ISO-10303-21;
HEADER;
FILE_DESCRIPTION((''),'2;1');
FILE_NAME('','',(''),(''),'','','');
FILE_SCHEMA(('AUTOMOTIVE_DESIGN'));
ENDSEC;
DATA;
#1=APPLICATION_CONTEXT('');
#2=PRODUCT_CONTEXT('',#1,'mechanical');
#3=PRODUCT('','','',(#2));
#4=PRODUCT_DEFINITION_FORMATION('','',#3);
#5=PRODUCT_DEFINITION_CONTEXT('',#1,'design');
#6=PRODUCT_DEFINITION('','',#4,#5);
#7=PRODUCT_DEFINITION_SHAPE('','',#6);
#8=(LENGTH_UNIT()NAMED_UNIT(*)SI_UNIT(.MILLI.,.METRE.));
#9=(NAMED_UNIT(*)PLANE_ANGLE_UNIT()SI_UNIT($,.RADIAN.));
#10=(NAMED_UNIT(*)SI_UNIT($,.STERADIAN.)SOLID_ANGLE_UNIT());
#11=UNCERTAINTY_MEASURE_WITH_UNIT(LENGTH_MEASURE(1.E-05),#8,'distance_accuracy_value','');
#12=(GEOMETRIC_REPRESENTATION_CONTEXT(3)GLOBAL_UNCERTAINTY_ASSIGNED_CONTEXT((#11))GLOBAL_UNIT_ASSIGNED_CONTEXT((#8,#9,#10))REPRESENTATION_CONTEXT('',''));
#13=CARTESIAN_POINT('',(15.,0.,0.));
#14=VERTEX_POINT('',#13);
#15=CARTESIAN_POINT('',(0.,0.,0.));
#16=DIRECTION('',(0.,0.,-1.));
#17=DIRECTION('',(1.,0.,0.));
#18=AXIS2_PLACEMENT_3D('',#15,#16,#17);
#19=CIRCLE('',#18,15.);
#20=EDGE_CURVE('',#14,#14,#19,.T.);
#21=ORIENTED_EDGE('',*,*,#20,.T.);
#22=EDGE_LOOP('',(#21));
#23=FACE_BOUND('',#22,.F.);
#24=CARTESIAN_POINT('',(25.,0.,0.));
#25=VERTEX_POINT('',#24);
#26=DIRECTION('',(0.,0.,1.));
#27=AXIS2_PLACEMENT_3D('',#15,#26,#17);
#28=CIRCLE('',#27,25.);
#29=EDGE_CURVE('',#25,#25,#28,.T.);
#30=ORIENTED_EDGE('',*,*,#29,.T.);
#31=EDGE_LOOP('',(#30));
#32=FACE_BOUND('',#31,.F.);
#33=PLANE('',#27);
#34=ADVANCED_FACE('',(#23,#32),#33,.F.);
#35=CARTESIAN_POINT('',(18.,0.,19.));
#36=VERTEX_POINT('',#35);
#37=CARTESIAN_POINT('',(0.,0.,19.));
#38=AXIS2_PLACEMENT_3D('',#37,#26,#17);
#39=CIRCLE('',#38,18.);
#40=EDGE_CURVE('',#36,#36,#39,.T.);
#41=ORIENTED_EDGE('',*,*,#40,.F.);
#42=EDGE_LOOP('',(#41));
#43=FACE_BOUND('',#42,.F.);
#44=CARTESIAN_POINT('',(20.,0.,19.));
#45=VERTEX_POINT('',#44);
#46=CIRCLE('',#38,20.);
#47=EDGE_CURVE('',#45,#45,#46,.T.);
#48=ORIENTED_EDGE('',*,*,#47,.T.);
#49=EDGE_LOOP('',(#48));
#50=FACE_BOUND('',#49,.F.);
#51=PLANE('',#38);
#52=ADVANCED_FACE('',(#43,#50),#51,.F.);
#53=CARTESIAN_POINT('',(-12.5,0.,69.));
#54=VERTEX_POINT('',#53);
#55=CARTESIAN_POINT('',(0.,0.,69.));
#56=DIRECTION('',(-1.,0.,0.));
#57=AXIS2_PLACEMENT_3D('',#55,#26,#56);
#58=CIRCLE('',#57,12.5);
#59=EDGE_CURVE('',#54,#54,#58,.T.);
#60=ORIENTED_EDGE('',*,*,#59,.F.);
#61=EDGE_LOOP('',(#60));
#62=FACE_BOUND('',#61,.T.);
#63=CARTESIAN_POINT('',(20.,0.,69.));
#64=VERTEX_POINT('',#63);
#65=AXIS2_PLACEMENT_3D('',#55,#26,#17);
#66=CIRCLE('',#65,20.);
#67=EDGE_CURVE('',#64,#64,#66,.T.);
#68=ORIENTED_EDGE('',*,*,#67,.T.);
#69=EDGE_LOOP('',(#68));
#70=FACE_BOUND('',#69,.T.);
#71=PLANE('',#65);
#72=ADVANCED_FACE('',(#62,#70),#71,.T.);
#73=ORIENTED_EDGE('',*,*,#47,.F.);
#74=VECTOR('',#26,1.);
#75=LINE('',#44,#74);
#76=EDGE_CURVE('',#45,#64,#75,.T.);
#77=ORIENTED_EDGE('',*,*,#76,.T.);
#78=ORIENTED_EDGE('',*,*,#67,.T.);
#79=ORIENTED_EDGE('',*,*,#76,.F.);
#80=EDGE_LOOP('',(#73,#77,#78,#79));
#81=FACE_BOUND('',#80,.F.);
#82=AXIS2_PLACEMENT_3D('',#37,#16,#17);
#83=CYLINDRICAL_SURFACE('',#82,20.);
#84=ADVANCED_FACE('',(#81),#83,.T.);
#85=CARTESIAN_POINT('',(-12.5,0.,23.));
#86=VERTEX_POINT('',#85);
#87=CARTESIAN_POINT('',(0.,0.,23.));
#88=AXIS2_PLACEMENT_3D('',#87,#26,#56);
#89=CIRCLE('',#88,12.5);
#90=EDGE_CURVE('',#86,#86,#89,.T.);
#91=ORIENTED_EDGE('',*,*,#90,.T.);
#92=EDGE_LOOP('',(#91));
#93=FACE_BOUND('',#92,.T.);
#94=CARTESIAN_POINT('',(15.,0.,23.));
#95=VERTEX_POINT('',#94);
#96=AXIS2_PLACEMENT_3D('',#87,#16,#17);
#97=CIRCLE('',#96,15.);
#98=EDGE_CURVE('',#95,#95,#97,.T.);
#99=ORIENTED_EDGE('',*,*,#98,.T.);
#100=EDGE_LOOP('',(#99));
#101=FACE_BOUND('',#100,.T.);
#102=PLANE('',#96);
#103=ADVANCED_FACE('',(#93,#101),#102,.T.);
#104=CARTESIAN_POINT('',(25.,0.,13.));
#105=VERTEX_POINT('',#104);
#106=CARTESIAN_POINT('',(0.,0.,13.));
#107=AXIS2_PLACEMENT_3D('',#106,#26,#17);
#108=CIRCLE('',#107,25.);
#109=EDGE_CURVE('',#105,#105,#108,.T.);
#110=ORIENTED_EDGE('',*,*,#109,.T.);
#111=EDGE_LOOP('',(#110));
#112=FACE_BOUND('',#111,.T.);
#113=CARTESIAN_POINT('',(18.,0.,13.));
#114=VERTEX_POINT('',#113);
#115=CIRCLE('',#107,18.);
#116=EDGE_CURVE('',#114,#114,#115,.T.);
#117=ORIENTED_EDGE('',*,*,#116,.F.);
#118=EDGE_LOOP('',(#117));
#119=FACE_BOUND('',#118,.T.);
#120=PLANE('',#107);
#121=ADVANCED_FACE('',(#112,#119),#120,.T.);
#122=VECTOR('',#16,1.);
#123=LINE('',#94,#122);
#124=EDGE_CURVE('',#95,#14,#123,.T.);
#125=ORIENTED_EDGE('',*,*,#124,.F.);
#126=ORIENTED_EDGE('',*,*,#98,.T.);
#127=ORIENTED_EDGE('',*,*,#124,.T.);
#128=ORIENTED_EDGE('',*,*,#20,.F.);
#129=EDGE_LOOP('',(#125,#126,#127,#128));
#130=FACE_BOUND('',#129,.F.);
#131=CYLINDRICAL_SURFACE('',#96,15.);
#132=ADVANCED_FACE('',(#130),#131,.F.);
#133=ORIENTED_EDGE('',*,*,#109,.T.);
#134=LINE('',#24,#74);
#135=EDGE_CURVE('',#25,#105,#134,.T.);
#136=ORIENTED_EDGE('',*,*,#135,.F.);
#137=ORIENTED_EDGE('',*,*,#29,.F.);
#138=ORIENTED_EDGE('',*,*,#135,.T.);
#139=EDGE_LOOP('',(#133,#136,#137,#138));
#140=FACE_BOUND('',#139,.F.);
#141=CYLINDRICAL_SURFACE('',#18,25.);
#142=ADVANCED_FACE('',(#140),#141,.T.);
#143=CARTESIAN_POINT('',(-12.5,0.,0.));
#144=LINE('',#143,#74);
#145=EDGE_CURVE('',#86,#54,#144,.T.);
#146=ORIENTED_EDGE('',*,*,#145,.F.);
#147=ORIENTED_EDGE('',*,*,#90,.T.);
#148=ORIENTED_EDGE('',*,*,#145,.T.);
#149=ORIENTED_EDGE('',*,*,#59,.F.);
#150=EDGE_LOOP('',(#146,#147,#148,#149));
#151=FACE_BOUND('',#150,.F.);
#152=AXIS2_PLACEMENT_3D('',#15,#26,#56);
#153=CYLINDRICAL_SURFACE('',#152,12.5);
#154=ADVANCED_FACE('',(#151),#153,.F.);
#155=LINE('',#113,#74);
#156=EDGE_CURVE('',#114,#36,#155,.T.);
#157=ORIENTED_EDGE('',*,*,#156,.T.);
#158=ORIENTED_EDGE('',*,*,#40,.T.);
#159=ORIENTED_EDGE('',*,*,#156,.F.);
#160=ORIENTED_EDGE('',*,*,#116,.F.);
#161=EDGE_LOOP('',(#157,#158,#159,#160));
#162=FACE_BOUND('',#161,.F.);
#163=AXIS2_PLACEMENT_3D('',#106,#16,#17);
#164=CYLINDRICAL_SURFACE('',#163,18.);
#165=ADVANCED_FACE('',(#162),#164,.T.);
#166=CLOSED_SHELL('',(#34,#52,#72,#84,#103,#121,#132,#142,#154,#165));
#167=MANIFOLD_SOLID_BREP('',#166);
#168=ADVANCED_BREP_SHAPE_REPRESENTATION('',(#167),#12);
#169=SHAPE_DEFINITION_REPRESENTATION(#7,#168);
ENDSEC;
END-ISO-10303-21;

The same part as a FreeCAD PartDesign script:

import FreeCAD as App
import Part
import Sketcher
from FreeCAD import Vector

doc = App.newDocument("Part")
body = doc.addObject("PartDesign::Body", "Body")

sketch1 = body.newObject("Sketcher::SketchObject", "Sketch")
sketch1.AttachmentSupport = (doc.getObject("XY_Plane"), [""])
sketch1.MapMode = "FlatFace"
sketch1.addGeometry(Part.Circle(Vector(0, 0, 0), Vector(0, 0, 1), 25), False)
sketch1.addConstraint([
    Sketcher.Constraint("Coincident", 0, 3, -1, 1),
    Sketcher.Constraint("Diameter", 0, 50.0),
])
pad1 = body.newObject("PartDesign::Pad", "Pad")
pad1.Profile = sketch1
pad1.Length = 13

sketch2 = body.newObject("Sketcher::SketchObject", "Sketch001")
sketch2.AttachmentSupport = (doc.getObject("XY_Plane"), [""])
sketch2.MapMode = "FlatFace"
sketch2.AttachmentOffset = App.Placement(Vector(0, 0, 13), App.Rotation())
sketch2.addGeometry(Part.Circle(Vector(0, 0, 0), Vector(0, 0, 1), 18), False)
sketch2.addConstraint([
    Sketcher.Constraint("Coincident", 0, 3, -1, 1),
    Sketcher.Constraint("Diameter", 0, 36.0),
])
pad2 = body.newObject("PartDesign::Pad", "Pad001")
pad2.Profile = sketch2
pad2.Length = 6

sketch3 = body.newObject("Sketcher::SketchObject", "Sketch002")
sketch3.AttachmentSupport = (doc.getObject("XY_Plane"), [""])
sketch3.MapMode = "FlatFace"
sketch3.AttachmentOffset = App.Placement(Vector(0, 0, 19), App.Rotation())
sketch3.addGeometry(Part.Circle(Vector(0, 0, 0), Vector(0, 0, 1), 20), False)
sketch3.addConstraint([
    Sketcher.Constraint("Coincident", 0, 3, -1, 1),
    Sketcher.Constraint("Diameter", 0, 40.0),
])
pad3 = body.newObject("PartDesign::Pad", "Pad002")
pad3.Profile = sketch3
pad3.Length = 50

sketch4 = body.newObject("Sketcher::SketchObject", "Sketch003")
sketch4.AttachmentSupport = (doc.getObject("XY_Plane"), [""])
sketch4.MapMode = "FlatFace"
sketch4.addGeometry(Part.Circle(Vector(0, 0, 0), Vector(0, 0, 1), 12), False)
sketch4.addConstraint([
    Sketcher.Constraint("Coincident", 0, 3, -1, 1),
    Sketcher.Constraint("Diameter", 0, 25.0),
])
doc.recompute()
hole = body.newObject("PartDesign::Hole", "Hole")
hole.Profile = sketch4
hole.ThreadType = "None"
hole.Diameter = 25
hole.DepthType = "ThroughAll"
hole.HoleCutType = "Counterbore"
hole.HoleCutDiameter = 30
hole.HoleCutDepth = 23
hole.Reversed = True

doc.recompute()
